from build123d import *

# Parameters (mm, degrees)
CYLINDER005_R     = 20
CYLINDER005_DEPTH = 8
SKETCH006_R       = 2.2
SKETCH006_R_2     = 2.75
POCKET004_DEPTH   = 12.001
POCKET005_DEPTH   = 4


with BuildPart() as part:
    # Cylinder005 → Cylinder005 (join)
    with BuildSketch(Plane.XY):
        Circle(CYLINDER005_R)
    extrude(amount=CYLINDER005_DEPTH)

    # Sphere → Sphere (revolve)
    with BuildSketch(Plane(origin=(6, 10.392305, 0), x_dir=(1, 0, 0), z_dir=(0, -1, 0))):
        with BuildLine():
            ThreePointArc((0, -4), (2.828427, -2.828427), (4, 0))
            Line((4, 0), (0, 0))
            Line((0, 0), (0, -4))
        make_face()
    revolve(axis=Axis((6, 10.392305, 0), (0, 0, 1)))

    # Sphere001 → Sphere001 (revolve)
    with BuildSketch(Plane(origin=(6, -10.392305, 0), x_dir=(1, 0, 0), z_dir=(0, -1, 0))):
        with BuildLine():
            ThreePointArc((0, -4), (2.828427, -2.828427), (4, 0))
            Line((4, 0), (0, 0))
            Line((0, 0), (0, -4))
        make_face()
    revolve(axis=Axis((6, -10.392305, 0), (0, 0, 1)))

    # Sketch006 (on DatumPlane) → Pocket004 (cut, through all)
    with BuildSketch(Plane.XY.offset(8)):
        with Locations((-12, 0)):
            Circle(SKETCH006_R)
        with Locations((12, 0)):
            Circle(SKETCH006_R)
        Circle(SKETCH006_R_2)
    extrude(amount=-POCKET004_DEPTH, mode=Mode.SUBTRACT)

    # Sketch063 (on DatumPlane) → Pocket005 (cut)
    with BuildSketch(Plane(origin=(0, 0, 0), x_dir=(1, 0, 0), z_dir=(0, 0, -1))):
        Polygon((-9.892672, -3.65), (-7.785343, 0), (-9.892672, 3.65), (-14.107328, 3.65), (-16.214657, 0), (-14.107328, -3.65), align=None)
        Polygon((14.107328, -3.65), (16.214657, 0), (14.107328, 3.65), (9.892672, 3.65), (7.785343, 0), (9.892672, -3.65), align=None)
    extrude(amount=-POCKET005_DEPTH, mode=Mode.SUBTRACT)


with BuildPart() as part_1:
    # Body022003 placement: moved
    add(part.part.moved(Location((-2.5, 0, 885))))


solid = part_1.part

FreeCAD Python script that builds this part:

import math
import FreeCAD as App
import Part
import Sketcher
from FreeCAD import Vector
Q = App.Units.Quantity


def add_polygon(sketch, points):
    """Adds a closed chain of lines whose ends are joined by coincident constraints."""
    first, n = sketch.GeometryCount, len(points)
    for a, b in zip(points, points[1:] + points[:1]):
        sketch.addGeometry(Part.LineSegment(App.Vector(*a, 0), App.Vector(*b, 0)), False)
    for i in range(n):
        sketch.addConstraint(Sketcher.Constraint("Coincident", first + i, 2, first + (i + 1) % n, 1))

doc = App.newDocument("Part")
body = doc.addObject("PartDesign::Body", "Body")

# Sketch on XY plane
sketch1 = body.newObject("Sketcher::SketchObject", "Sketch")
sketch1.AttachmentSupport = (doc.getObject("XY_Plane"), [""])
sketch1.MapMode = "FlatFace"
sketch1.addGeometry(Part.Circle(Vector(0, 0, 0), Vector(0, 0, 1), 20), False)
sketch1.addConstraint([
    Sketcher.Constraint("Coincident", 0, 3, -1, 1),
    Sketcher.Constraint("Diameter", 0, Q("40 mm")),
])
pad1 = body.newObject("PartDesign::Pad", "Pad")
pad1.Profile = sketch1
pad1.Length = 8

# Sketch on XZ plane
sketch2 = body.newObject("Sketcher::SketchObject", "Sketch001")
sketch2.AttachmentSupport = (doc.getObject("XZ_Plane"), [""])
sketch2.MapMode = "FlatFace"
sketch2.AttachmentOffset = App.Placement(Vector(0, 0, -10.392305), App.Rotation())
sketch2.addGeometry([
    Part.ArcOfCircle(Part.Circle(Vector(6, 0, 0), Vector(0, 0, 1), 4), math.radians(-90), math.radians(0)),
    Part.LineSegment(Vector(10, 0, 0), Vector(6, 0, 0)),
    Part.LineSegment(Vector(6, 0, 0), Vector(6, -4, 0)),
], False)
sketch2.addGeometry(Part.LineSegment(Vector(6, -4, 0), Vector(6, 0, 0)), True)  # axis
sketch2.addConstraint([
    Sketcher.Constraint("Coincident", 0, 2, 1, 1),
    Sketcher.Constraint("Coincident", 1, 2, 2, 1),
    Sketcher.Constraint("Coincident", 2, 2, 0, 1),
    Sketcher.Constraint("Horizontal", 1),
    Sketcher.Constraint("Vertical", 2),
    Sketcher.Constraint("Vertical", 3),
    Sketcher.Constraint("Coincident", 1, 2, 0, 3),
    Sketcher.Constraint("Coincident", 3, 1, 2, 2),
    Sketcher.Constraint("PointOnObject", 0, 3, -1),
    Sketcher.Constraint("PointOnObject", 3, 2, -1),
    Sketcher.Constraint("Radius", 0, Q("4 mm")),
    Sketcher.Constraint("DistanceX", -1, 1, 0, 3, Q("6 mm")),
])
revolution = body.newObject("PartDesign::Revolution", "Revolution")
revolution.Profile = sketch2
revolution.ReferenceAxis = (sketch2, ["Axis0"])
revolution.Angle = 360

# Sketch on XZ plane
sketch3 = body.newObject("Sketcher::SketchObject", "Sketch002")
sketch3.AttachmentSupport = (doc.getObject("XZ_Plane"), [""])
sketch3.MapMode = "FlatFace"
sketch3.AttachmentOffset = App.Placement(Vector(0, 0, 10.392305), App.Rotation())
sketch3.addGeometry([
    Part.ArcOfCircle(Part.Circle(Vector(6, 0, 0), Vector(0, 0, 1), 4), math.radians(-90), math.radians(0)),
    Part.LineSegment(Vector(10, 0, 0), Vector(6, 0, 0)),
    Part.LineSegment(Vector(6, 0, 0), Vector(6, -4, 0)),
], False)
sketch3.addGeometry(Part.LineSegment(Vector(6, -4, 0), Vector(6, 0, 0)), True)  # axis
sketch3.addConstraint([
    Sketcher.Constraint("Coincident", 0, 2, 1, 1),
    Sketcher.Constraint("Coincident", 1, 2, 2, 1),
    Sketcher.Constraint("Coincident", 2, 2, 0, 1),
    Sketcher.Constraint("Horizontal", 1),
    Sketcher.Constraint("Vertical", 2),
    Sketcher.Constraint("Vertical", 3),
    Sketcher.Constraint("Coincident", 1, 2, 0, 3),
    Sketcher.Constraint("Coincident", 3, 1, 2, 2),
    Sketcher.Constraint("PointOnObject", 0, 3, -1),
    Sketcher.Constraint("PointOnObject", 3, 2, -1),
    Sketcher.Constraint("Radius", 0, Q("4 mm")),
    Sketcher.Constraint("DistanceX", -1, 1, 0, 3, Q("6 mm")),
])
revolution2 = body.newObject("PartDesign::Revolution", "Revolution001")
revolution2.Profile = sketch3
revolution2.ReferenceAxis = (sketch3, ["Axis0"])
revolution2.Angle = 360

# Sketch on XY plane
sketch4 = body.newObject("Sketcher::SketchObject", "Sketch003")
sketch4.AttachmentSupport = (doc.getObject("XY_Plane"), [""])
sketch4.MapMode = "FlatFace"
sketch4.AttachmentOffset = App.Placement(Vector(0, 0, 8), App.Rotation())
sketch4.addGeometry([
    Part.Circle(Vector(-12, 0, 0), Vector(0, 0, 1), 2.2),
    Part.Circle(Vector(12, 0, 0), Vector(0, 0, 1), 2.2),
    Part.Circle(Vector(0, 0, 0), Vector(0, 0, 1), 2.8),
], False)
sketch4.addConstraint([
    Sketcher.Constraint("Coincident", 2, 3, -1, 1),
    Sketcher.Constraint("Equal", 0, 1),
    Sketcher.Constraint("Symmetric", 0, 3, 1, 3, -1, 1),
    Sketcher.Constraint("PointOnObject", 0, 3, -1),
    Sketcher.Constraint("Diameter", 0, Q("4.4 mm")),
    Sketcher.Constraint("Diameter", 2, Q("5.5 mm")),
    Sketcher.Constraint("DistanceX", 0, 3, -1, 1, Q("12 mm")),
])
pocket1 = body.newObject("PartDesign::Pocket", "Pocket")
pocket1.Profile = sketch4
pocket1.Type = "ThroughAll"

# Sketch on XY plane
sketch5 = body.newObject("Sketcher::SketchObject", "Sketch004")
sketch5.AttachmentSupport = (doc.getObject("XY_Plane"), [""])
sketch5.MapMode = "FlatFace"
add_polygon(sketch5, [(-9.9, 3.6), (-7.8, 0), (-9.9, -3.6), (-14.1, -3.6), (-16.2, 0), (-14.1, 3.6)])  # lines 0-5
add_polygon(sketch5, [(14.1, 3.6), (16.2, 0), (14.1, -3.6), (9.9, -3.6), (7.8, 0), (9.9, 3.6)])  # lines 6-11
sketch5.addConstraint([
    Sketcher.Constraint("Horizontal", 2),
    Sketcher.Constraint("Horizontal", 5),
    Sketcher.Constraint("Horizontal", 8),
    Sketcher.Constraint("Horizontal", 11),
    Sketcher.Constraint("Symmetric", 3, 2, 6, 2, -1, 1),
    Sketcher.Constraint("Symmetric", 4, 2, 7, 2, -1, 1),
    Sketcher.Constraint("Symmetric", 0, 2, 9, 2, -1, 1),
    Sketcher.Constraint("Symmetric", 1, 2, 10, 2, -1, 1),
    Sketcher.Constraint("Symmetric", 2, 2, 7, 2, -2),
    Sketcher.Constraint("PointOnObject", 0, 2, -1),
    Sketcher.Constraint("PointOnObject", 3, 2, -1),
    Sketcher.Constraint("Parallel", 0, 3),
    Sketcher.Constraint("Parallel", 1, 4),
    Sketcher.Constraint("Parallel", 3, 6),
    Sketcher.Constraint("Parallel", 6, 9),
    Sketcher.Constraint("Angle", 0, Q("-59.999994 deg")),
    Sketcher.Constraint("DistanceX", 0, 2, 6, 2, Q("24 mm")),
    Sketcher.Constraint("DistanceY", 2, 2, 4, 2, Q("7.3 mm")),
    Sketcher.Constraint("DistanceX", 2, 2, 2, 1, Q("4.214656 mm")),
])
pocket2 = body.newObject("PartDesign::Pocket", "Pocket001")
pocket2.Profile = sketch5
pocket2.Length = 4
pocket2.Reversed = True
body2 = doc.addObject("PartDesign::Body", "Body001")
doc.recompute()

body.Placement = App.Placement(Vector(-2.5, 0, 885), App.Rotation(Vector(0, 0, 1), 0))
boolean = body2.newObject("PartDesign::Boolean", "Boolean")
boolean.Type = "Fuse"
boolean.addObjects([body])

doc.recompute()
